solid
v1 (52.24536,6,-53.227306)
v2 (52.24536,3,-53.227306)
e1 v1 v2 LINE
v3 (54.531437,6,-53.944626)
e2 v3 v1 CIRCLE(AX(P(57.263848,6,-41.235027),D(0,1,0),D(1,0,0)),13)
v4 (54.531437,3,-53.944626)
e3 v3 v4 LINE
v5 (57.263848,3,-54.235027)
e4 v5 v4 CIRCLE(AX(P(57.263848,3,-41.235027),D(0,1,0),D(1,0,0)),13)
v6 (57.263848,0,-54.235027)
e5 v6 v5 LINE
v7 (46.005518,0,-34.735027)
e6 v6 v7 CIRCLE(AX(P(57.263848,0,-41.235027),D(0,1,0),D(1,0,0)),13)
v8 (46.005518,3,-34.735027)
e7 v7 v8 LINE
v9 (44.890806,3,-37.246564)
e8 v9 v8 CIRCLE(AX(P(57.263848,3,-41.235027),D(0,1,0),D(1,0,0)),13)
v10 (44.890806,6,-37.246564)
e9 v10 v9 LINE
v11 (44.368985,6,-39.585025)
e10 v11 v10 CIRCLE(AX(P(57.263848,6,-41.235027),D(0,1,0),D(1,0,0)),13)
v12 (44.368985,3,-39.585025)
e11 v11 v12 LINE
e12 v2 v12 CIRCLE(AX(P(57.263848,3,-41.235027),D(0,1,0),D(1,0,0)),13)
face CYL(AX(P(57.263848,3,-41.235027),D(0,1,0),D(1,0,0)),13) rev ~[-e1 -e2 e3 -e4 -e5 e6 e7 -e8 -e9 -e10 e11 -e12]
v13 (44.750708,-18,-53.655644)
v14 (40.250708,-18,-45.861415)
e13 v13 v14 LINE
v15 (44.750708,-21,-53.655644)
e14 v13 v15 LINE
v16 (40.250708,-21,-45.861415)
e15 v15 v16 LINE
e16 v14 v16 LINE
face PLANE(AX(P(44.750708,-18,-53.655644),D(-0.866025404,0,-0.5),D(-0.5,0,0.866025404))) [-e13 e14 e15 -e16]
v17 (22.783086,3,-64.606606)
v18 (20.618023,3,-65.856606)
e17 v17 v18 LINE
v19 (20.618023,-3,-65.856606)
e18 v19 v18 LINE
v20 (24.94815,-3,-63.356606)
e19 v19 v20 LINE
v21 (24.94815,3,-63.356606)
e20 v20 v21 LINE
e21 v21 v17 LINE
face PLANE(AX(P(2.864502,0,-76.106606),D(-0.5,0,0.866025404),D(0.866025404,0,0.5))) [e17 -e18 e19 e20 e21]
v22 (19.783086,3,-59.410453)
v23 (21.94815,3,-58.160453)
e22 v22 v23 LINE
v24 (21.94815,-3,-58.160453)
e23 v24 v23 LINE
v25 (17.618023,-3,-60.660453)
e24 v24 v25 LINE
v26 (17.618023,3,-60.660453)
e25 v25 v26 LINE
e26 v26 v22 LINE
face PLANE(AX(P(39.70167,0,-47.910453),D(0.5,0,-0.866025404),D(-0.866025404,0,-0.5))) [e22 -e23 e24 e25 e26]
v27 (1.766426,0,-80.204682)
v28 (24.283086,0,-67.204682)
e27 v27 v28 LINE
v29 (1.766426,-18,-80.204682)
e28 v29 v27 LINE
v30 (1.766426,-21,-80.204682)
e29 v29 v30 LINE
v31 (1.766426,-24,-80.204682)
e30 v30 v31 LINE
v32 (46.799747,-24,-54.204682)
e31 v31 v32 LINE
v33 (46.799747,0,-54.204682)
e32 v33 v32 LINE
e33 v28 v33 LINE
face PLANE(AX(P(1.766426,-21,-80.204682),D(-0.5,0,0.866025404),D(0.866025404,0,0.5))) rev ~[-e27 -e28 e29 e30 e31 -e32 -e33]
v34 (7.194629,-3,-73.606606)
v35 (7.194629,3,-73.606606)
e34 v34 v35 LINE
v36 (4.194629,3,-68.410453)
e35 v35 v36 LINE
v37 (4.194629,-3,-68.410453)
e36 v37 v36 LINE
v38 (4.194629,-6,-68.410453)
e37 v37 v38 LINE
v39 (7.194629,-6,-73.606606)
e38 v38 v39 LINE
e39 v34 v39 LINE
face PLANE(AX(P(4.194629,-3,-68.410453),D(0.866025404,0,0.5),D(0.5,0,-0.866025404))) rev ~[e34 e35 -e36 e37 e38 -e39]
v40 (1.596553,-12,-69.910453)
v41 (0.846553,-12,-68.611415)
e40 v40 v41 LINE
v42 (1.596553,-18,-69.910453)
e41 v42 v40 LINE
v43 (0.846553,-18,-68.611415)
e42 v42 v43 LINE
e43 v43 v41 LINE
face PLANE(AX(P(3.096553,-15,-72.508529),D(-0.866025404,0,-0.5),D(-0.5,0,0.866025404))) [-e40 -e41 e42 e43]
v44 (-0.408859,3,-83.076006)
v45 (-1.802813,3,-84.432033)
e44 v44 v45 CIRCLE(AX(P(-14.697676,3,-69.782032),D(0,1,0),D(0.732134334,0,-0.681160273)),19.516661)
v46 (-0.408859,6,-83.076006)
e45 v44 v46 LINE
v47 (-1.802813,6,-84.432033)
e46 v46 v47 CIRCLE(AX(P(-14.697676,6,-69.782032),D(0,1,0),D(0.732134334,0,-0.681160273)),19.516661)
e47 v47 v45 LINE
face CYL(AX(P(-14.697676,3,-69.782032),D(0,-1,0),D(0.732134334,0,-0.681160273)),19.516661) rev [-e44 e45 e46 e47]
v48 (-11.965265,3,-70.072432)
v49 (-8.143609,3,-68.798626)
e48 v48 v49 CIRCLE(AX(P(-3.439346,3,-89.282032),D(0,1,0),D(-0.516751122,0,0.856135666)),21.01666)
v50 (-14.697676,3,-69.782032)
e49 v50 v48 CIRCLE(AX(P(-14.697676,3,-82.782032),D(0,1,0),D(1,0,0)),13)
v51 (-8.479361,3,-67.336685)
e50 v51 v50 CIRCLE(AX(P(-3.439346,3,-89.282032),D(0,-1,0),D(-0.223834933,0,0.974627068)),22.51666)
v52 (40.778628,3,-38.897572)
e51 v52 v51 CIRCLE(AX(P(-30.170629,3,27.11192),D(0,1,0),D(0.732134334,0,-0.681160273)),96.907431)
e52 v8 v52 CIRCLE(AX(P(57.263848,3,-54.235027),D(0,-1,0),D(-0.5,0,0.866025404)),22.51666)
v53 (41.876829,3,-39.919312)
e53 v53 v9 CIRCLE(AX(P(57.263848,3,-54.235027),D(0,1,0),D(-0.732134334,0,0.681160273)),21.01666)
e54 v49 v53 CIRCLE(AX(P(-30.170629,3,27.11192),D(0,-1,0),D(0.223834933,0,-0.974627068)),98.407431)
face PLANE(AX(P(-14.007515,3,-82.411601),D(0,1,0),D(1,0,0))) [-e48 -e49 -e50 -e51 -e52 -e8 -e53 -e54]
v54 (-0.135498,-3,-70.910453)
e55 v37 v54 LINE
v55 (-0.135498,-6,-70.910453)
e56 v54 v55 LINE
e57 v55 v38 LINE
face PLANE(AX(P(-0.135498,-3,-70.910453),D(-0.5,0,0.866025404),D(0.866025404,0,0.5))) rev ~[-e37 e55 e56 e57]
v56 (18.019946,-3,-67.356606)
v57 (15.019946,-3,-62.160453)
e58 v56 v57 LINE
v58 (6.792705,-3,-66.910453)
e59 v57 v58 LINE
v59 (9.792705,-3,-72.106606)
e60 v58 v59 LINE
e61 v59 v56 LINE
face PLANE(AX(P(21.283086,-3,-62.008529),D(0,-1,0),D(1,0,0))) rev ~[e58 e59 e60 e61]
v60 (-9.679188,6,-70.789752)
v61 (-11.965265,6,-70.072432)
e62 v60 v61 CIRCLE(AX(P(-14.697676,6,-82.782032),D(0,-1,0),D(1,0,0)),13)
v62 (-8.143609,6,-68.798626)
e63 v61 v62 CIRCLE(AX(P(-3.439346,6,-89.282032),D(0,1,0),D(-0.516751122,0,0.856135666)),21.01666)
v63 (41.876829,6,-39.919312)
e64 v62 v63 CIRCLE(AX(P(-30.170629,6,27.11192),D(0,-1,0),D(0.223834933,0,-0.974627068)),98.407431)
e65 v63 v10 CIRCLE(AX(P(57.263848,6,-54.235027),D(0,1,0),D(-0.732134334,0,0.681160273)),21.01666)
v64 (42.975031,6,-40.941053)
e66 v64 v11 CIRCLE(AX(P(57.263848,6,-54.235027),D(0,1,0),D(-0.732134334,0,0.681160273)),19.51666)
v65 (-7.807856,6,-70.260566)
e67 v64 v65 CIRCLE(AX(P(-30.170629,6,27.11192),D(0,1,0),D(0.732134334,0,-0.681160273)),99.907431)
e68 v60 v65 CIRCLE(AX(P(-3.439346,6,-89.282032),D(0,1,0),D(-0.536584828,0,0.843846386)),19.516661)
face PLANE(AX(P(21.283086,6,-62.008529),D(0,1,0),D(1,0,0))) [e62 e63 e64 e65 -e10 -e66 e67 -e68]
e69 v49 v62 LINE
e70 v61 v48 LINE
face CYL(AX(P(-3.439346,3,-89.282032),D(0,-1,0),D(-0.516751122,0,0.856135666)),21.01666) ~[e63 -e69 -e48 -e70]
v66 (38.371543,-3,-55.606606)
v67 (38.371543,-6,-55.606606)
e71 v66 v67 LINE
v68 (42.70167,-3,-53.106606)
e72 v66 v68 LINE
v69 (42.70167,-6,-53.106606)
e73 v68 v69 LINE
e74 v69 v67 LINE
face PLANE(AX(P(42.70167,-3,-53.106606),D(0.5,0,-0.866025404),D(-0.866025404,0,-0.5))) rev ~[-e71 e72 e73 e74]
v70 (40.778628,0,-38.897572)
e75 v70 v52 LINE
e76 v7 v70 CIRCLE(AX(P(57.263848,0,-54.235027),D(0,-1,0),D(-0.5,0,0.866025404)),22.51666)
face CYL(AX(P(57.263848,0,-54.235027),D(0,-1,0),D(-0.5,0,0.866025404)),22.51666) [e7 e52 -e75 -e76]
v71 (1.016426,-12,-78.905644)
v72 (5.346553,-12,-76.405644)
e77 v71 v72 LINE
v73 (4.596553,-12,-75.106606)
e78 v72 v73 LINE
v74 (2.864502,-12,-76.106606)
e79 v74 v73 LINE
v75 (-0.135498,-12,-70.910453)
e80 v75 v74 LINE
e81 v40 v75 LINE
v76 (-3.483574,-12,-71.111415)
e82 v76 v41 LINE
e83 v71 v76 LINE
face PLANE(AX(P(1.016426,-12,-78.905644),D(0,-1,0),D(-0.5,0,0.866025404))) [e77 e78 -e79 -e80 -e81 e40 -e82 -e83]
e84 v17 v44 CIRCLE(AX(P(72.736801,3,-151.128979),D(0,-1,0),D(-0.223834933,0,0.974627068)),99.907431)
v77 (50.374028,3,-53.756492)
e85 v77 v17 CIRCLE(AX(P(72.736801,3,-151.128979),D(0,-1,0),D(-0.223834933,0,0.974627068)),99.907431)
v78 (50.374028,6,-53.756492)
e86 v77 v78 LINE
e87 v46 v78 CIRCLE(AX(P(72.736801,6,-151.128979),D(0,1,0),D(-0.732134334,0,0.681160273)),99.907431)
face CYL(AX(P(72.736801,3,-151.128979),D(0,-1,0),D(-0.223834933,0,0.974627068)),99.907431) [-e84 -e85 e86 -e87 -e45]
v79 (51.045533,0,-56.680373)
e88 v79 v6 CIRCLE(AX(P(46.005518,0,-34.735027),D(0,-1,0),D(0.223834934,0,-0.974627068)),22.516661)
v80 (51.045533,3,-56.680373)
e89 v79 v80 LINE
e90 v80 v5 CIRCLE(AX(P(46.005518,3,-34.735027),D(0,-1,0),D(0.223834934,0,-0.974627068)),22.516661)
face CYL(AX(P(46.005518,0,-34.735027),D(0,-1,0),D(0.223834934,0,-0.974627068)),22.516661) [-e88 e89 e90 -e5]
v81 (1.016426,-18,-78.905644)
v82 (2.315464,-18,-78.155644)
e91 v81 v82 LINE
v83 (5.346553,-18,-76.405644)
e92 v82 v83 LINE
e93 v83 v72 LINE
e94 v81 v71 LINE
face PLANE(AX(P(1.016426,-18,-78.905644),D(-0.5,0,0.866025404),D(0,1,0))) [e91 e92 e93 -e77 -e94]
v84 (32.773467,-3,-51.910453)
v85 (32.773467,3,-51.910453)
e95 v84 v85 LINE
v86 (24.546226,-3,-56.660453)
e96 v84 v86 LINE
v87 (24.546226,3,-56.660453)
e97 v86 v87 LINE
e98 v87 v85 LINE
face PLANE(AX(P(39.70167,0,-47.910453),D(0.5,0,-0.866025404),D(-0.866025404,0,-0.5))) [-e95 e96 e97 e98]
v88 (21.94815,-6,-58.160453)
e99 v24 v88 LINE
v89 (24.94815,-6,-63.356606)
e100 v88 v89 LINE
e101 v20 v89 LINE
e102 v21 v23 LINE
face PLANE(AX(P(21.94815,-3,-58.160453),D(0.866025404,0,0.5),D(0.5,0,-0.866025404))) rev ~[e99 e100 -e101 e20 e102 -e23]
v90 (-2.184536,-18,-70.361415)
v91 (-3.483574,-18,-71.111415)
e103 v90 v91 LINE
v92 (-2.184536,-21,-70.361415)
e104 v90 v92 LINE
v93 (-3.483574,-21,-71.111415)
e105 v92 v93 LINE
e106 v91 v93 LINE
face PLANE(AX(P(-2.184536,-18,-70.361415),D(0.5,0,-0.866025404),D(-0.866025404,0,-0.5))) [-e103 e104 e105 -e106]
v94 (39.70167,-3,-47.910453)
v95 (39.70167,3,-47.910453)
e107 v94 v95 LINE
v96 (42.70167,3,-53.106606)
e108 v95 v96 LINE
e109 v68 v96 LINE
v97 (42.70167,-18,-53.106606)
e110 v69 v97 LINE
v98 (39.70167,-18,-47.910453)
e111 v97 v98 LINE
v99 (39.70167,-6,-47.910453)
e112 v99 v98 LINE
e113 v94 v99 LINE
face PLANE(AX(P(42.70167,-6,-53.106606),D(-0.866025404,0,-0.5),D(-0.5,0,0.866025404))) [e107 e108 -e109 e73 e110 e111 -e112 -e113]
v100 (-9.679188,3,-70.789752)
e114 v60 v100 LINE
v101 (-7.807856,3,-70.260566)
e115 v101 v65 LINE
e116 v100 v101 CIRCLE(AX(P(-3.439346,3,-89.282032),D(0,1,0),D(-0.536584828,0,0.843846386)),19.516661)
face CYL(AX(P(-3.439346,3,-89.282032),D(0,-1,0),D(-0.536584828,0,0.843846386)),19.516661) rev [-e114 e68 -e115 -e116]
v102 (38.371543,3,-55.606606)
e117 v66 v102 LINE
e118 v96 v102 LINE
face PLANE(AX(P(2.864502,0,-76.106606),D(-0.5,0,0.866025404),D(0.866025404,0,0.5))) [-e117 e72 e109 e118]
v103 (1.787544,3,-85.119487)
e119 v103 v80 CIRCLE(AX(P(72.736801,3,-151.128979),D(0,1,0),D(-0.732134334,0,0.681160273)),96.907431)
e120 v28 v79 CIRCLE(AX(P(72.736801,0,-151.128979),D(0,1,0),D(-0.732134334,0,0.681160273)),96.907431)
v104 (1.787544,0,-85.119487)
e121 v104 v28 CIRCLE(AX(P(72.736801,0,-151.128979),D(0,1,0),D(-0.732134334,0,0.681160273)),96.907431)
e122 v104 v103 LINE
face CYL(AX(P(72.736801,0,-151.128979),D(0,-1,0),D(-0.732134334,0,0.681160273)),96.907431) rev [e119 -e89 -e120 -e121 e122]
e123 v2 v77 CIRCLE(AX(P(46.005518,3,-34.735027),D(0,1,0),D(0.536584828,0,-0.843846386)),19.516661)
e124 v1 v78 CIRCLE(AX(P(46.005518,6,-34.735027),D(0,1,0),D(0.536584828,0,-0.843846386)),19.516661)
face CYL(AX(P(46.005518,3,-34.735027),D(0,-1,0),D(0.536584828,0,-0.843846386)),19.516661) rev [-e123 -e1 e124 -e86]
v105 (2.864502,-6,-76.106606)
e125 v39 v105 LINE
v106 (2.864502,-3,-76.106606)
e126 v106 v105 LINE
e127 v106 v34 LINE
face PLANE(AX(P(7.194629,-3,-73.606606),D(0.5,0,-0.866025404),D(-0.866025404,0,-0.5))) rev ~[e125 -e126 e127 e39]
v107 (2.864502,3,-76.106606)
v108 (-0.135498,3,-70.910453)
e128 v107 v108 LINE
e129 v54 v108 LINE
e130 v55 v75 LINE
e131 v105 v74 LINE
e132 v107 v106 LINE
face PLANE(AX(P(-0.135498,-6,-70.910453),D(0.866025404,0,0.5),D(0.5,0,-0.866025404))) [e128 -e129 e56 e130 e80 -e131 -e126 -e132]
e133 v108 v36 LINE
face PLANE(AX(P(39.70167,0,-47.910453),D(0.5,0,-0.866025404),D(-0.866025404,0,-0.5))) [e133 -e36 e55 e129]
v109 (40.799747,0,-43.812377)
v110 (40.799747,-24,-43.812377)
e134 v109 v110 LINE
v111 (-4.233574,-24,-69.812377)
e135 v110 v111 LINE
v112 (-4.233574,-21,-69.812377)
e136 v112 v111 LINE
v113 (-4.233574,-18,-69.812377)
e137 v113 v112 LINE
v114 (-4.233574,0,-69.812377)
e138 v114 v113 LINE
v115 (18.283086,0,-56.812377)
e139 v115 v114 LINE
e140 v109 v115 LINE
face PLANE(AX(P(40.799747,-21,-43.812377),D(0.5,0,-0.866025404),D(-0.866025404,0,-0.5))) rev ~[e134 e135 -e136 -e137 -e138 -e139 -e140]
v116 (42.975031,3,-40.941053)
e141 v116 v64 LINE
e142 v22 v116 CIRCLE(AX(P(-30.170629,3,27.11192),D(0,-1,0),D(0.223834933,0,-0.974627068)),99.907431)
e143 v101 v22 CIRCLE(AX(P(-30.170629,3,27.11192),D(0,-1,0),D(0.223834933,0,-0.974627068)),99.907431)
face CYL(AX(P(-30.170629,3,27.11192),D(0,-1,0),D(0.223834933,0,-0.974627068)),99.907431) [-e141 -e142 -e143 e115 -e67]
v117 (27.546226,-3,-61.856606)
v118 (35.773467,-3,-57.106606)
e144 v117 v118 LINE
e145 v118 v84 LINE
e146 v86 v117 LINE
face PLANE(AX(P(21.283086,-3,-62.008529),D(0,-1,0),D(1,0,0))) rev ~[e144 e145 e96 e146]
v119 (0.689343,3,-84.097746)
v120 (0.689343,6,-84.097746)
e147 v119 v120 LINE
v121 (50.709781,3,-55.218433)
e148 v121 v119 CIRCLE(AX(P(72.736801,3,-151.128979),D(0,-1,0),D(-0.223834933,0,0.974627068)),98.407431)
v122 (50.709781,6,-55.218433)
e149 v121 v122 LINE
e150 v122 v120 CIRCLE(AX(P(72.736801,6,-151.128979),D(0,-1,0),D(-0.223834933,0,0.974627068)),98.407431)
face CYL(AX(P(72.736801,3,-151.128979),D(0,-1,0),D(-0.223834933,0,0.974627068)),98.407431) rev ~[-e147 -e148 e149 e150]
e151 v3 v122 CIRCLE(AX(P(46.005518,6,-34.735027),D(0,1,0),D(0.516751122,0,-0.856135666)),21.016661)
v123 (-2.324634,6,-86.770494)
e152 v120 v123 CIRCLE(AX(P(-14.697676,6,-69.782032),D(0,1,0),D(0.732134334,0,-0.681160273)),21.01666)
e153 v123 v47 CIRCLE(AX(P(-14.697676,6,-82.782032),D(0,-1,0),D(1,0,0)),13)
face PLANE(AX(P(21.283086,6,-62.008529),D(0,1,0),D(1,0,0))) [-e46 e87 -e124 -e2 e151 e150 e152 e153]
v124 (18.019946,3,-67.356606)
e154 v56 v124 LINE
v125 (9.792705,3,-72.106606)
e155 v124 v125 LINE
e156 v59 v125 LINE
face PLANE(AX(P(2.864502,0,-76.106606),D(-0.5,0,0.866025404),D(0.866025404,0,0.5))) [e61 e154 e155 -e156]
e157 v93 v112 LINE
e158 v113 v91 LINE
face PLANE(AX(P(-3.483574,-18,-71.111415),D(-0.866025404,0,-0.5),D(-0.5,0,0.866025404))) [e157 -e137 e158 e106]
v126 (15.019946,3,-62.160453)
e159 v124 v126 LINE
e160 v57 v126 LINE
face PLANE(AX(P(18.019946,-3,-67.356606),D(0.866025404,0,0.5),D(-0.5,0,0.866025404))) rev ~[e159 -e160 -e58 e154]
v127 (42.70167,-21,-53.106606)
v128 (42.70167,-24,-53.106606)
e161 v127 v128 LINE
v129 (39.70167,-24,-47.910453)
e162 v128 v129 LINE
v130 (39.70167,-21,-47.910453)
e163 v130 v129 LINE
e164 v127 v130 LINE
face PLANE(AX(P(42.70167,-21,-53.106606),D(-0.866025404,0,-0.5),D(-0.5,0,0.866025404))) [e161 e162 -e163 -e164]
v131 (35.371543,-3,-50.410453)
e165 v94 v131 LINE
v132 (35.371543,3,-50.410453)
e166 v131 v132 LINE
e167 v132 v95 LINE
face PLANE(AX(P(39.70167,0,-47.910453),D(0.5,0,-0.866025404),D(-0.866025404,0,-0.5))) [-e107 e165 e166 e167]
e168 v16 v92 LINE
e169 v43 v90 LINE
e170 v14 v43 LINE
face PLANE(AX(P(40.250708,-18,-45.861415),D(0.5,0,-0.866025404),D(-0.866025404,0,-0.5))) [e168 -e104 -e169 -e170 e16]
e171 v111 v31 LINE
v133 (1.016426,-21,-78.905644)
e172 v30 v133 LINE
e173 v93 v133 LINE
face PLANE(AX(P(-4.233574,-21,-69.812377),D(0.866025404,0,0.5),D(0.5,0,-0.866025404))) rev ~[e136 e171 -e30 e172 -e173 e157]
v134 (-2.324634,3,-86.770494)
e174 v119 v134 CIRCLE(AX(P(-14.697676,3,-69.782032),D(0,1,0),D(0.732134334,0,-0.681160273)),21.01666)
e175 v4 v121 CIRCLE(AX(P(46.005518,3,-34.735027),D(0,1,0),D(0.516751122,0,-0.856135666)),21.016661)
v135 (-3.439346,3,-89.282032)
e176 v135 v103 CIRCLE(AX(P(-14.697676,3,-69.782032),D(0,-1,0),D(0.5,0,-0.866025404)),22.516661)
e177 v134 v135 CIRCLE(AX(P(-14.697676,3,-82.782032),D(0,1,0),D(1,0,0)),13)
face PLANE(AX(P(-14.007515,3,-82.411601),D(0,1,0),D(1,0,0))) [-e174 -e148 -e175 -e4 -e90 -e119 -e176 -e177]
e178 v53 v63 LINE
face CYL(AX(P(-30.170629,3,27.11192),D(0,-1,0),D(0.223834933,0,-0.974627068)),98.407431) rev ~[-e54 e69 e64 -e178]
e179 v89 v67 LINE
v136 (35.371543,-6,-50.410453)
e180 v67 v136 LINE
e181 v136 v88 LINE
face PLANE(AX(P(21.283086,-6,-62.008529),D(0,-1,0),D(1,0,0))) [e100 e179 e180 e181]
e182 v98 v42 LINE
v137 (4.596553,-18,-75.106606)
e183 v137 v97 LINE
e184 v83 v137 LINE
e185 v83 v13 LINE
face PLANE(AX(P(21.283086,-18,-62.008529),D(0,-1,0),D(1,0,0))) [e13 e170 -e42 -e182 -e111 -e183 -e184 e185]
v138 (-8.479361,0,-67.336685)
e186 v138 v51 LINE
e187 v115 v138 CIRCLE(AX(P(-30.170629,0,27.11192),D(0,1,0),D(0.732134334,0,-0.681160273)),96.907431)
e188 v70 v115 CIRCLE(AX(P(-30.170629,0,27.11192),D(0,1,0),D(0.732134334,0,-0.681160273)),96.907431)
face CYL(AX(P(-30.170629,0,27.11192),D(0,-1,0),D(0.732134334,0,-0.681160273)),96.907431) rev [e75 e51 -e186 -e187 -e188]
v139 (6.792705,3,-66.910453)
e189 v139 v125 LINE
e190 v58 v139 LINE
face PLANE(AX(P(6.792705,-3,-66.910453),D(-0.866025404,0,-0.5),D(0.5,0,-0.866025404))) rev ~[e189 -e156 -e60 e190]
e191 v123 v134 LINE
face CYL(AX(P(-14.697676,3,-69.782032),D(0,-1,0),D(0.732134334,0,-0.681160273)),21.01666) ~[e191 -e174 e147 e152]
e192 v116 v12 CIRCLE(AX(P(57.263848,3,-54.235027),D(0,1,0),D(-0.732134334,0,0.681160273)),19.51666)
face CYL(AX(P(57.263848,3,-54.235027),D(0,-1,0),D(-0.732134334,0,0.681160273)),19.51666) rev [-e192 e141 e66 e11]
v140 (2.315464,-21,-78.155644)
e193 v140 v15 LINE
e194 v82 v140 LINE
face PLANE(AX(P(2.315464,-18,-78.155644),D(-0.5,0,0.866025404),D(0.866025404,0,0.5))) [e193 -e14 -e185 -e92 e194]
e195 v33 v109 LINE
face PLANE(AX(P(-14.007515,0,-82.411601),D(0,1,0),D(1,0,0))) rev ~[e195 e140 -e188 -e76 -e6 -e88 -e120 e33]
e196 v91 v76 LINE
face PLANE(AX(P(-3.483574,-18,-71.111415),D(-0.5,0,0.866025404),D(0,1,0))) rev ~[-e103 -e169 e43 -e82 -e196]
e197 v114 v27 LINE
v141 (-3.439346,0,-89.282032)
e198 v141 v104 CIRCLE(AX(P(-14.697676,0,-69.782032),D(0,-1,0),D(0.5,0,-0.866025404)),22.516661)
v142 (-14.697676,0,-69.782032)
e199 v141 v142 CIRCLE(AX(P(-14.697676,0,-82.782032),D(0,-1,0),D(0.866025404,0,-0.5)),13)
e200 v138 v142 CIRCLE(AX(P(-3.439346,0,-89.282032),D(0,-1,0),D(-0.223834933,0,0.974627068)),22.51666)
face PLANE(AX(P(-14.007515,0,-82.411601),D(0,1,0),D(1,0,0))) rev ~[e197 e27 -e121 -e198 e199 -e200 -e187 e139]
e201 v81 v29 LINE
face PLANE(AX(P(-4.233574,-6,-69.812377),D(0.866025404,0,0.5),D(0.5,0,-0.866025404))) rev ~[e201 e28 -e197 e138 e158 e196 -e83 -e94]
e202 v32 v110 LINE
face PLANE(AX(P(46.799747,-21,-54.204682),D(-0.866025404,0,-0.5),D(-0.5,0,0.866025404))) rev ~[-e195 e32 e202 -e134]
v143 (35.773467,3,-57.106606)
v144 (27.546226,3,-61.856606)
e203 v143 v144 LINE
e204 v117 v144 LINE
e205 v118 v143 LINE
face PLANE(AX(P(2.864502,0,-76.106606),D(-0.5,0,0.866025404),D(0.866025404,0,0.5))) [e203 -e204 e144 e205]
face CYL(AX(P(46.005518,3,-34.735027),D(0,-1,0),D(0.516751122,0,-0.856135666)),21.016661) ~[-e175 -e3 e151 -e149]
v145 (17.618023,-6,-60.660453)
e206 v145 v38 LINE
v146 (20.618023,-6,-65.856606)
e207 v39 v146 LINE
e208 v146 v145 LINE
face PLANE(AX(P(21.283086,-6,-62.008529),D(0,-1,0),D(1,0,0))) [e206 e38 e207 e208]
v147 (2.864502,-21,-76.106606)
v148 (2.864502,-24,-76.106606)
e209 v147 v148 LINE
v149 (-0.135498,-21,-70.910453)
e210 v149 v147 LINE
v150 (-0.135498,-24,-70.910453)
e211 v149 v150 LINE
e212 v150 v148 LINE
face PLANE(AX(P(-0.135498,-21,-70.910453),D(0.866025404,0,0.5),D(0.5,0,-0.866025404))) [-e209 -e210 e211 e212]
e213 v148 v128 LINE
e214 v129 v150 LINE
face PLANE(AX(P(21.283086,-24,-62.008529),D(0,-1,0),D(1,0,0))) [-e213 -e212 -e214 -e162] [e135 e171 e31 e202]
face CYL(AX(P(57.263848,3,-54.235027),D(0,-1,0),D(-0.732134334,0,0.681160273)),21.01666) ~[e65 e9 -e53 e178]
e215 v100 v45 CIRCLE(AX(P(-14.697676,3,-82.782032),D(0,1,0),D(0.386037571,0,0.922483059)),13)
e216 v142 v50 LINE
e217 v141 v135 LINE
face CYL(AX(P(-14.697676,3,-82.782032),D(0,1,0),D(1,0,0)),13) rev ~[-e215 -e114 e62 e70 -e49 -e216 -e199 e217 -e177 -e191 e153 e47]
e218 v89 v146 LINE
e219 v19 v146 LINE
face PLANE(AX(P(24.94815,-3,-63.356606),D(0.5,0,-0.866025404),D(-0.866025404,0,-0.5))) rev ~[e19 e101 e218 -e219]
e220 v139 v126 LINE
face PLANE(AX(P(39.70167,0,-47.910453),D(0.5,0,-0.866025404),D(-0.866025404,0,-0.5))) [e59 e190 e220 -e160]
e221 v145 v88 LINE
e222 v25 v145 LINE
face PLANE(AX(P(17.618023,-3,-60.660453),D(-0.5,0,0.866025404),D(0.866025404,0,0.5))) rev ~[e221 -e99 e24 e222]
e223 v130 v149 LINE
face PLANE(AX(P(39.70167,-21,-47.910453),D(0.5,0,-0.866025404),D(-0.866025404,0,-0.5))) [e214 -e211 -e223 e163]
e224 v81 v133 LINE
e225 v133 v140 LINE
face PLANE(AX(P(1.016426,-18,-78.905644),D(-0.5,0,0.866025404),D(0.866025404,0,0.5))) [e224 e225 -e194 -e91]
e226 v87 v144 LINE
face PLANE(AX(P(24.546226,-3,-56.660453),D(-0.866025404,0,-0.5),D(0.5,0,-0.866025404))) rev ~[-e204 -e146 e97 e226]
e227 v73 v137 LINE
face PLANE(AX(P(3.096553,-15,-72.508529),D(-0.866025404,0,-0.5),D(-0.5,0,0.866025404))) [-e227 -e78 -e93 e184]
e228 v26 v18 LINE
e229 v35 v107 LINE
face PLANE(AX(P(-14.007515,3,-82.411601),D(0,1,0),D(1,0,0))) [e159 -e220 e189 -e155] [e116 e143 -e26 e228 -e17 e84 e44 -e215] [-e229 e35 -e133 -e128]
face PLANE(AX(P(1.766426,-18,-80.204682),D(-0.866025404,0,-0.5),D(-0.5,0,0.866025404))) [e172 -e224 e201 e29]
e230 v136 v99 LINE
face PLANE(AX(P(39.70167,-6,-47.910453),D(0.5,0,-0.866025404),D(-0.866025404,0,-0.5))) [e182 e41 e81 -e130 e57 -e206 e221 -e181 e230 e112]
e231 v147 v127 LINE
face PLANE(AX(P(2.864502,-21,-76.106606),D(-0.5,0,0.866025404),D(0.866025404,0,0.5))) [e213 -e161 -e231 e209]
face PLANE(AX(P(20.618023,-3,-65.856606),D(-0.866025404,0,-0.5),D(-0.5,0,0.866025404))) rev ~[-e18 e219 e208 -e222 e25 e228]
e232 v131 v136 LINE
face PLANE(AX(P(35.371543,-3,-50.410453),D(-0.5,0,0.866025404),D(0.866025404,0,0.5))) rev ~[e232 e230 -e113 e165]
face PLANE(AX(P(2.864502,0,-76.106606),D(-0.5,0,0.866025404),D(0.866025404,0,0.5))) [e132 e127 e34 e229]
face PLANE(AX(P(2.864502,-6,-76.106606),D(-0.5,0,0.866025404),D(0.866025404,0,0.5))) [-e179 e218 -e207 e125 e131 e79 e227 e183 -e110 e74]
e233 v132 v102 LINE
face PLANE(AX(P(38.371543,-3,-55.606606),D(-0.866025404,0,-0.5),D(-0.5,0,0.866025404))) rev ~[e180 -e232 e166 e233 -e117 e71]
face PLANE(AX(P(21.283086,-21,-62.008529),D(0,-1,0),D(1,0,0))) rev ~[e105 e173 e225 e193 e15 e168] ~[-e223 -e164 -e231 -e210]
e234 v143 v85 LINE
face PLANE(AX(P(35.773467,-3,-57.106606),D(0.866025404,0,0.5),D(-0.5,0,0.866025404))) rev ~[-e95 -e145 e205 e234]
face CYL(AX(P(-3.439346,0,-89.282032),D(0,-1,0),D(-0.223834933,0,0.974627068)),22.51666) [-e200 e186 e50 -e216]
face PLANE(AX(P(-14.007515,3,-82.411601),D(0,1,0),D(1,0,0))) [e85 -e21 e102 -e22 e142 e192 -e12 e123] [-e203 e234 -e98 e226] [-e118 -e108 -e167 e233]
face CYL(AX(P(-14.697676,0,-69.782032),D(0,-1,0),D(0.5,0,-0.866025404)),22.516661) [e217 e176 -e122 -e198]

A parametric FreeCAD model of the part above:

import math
import FreeCAD as App
import Part
import Sketcher
Q = App.Units.Quantity


def add_polygon(sketch, points):
    """Adds a closed chain of lines whose ends are joined by coincident constraints."""
    first, n = sketch.GeometryCount, len(points)
    for a, b in zip(points, points[1:] + points[:1]):
        sketch.addGeometry(Part.LineSegment(App.Vector(*a, 0), App.Vector(*b, 0)), False)
    for i in range(n):
        sketch.addConstraint(Sketcher.Constraint("Coincident", first + i, 2, first + (i + 1) % n, 1))

doc = App.newDocument("Part")
body = doc.addObject("PartDesign::Body", "Body")

# Sketch on XZ plane
sketch1 = doc.addObject("Sketcher::SketchObject", "Sketch")
body.addObject(sketch1)
sketch1.AttachmentSupport = (doc.XZ_Plane, [""])
sketch1.MapMode = "FlatFace"
sketch1.addGeometry([
    Part.ArcOfCircle(Part.Circle(App.Vector(-14.697676, -82.782032, 0), App.Vector(0, 0, 1), 13), math.radians(90), math.radians(330)),  # 0
    Part.ArcOfCircle(Part.Circle(App.Vector(-3.439346, -89.282032, 0), App.Vector(0, 0, 1), 22.51666), math.radians(102.934378), math.radians(120)),  # 1
    Part.ArcOfCircle(Part.Circle(App.Vector(-30.170629, 27.11192, 0), App.Vector(0, 0, 1), 96.907431), math.radians(-77.065622), math.radians(-42.934378)),  # 2
    Part.ArcOfCircle(Part.Circle(App.Vector(57.263848, -54.235027, 0), App.Vector(0, 0, 1), 22.51666), math.radians(120), math.radians(137.065622)),  # 3
    Part.ArcOfCircle(Part.Circle(App.Vector(57.263848, -41.235027, 0), App.Vector(0, 0, 1), 13), math.radians(0), math.radians(150)),  # 4
    Part.ArcOfCircle(Part.Circle(App.Vector(57.263848, -41.235027, 0), App.Vector(0, 0, 1), 13), math.radians(-90), math.radians(0)),  # 5
    Part.ArcOfCircle(Part.Circle(App.Vector(46.005518, -34.735027, 0), App.Vector(0, 0, 1), 22.516661), math.radians(-77.065622), math.radians(-60)),  # 6
    Part.ArcOfCircle(Part.Circle(App.Vector(72.736801, -151.128979, 0), App.Vector(0, 0, 1), 96.907431), math.radians(102.934378), math.radians(137.065622)),  # 7
    Part.ArcOfCircle(Part.Circle(App.Vector(-14.697676, -69.782032, 0), App.Vector(0, 0, 1), 22.516661), math.radians(-60), math.radians(-42.934378)),  # 8
], False)
sketch1.addConstraint([
    Sketcher.Constraint("Coincident", 0, 1, 1, 2),
    Sketcher.Constraint("Tangent", 1, 1, 2, 1),
    Sketcher.Constraint("Tangent", 2, 2, 3, 2),
    Sketcher.Constraint("Coincident", 3, 1, 4, 2),
    Sketcher.Constraint("Tangent", 4, 1, 5, 2),
    Sketcher.Constraint("Coincident", 5, 1, 6, 2),
    Sketcher.Constraint("Tangent", 6, 1, 7, 1),
    Sketcher.Constraint("Tangent", 7, 2, 8, 2),
    Sketcher.Constraint("Coincident", 8, 1, 0, 2),
    Sketcher.Constraint("Coincident", 0, 1, 8, 3),
    Sketcher.Constraint("Coincident", 3, 1, 6, 3),
    Sketcher.Constraint("Coincident", 5, 1, 3, 3),
    Sketcher.Constraint("Coincident", 8, 1, 1, 3),
    Sketcher.Constraint("Equal", 1, 3),
    Sketcher.Constraint("Equal", 0, 4),
    Sketcher.Constraint("Equal", 4, 5),
    Sketcher.Constraint("Equal", 2, 7),
    Sketcher.Constraint("Horizontal", 5, 3, 4, 1),
    Sketcher.Constraint("Vertical", 3, 3, 4, 3),
    Sketcher.Constraint("Vertical", 0, 3, 8, 3),
    Sketcher.Constraint("Radius", 0, Q("13 mm")),
    Sketcher.Constraint("DistanceY", 1, 3, 0, 3, Q("6.5 mm")),
    Sketcher.Constraint("Radius", 2, Q("96.907431 mm")),
    Sketcher.Constraint("DistanceX", -1, 1, 7, 3, Q("72.736801 mm")),
    Sketcher.Constraint("DistanceY", 1, 3, -1, 1, Q("89.282032 mm")),
    Sketcher.Constraint("DistanceX", 2, 3, -1, 1, Q("30.170629 mm")),
    Sketcher.Constraint("DistanceY", -1, 1, 2, 3, Q("27.11192 mm")),
])
pad1 = doc.addObject("PartDesign::Pad", "Pad")
body.addObject(pad1)
pad1.Profile = sketch1
pad1.Length = 3
pad1.Reversed = True

# Sketch on XZ plane
sketch2 = doc.addObject("Sketcher::SketchObject", "Sketch001")
body.addObject(sketch2)
sketch2.AttachmentSupport = (doc.XZ_Plane, [""])
sketch2.MapMode = "FlatFace"
sketch2.AttachmentOffset = App.Placement(App.Vector(0, 0, -3), App.Rotation())
sketch2.addGeometry([
    Part.ArcOfCircle(Part.Circle(App.Vector(-14.697676, -82.782032, 0), App.Vector(0, 0, 1), 11.5), math.radians(88.016934), math.radians(331.983066)),  # 0
    Part.ArcOfCircle(Part.Circle(App.Vector(-3.439346, -89.282032, 0), App.Vector(0, 0, 1), 21.01666), math.radians(102.934378), math.radians(121.114574)),  # 1
    Part.ArcOfCircle(Part.Circle(App.Vector(-30.170629, 27.11192, 0), App.Vector(0, 0, 1), 98.407431), math.radians(-77.065622), math.radians(-42.934378)),  # 2
    Part.ArcOfCircle(Part.Circle(App.Vector(57.263848, -54.235027, 0), App.Vector(0, 0, 1), 21.01666), math.radians(118.885426), math.radians(137.065622)),  # 3
    Part.ArcOfCircle(Part.Circle(App.Vector(57.263848, -41.235027, 0), App.Vector(0, 0, 1), 11.5), math.radians(-91.983066), math.radians(151.983066)),  # 4
    Part.ArcOfCircle(Part.Circle(App.Vector(46.005518, -34.735027, 0), App.Vector(0, 0, 1), 21.016661), math.radians(-77.065622), math.radians(-58.885426)),  # 5
    Part.ArcOfCircle(Part.Circle(App.Vector(72.736801, -151.128979, 0), App.Vector(0, 0, 1), 98.407431), math.radians(102.934378), math.radians(137.065622)),  # 6
    Part.ArcOfCircle(Part.Circle(App.Vector(-14.697676, -69.782032, 0), App.Vector(0, 0, 1), 21.01666), math.radians(-61.114574), math.radians(-42.934378)),  # 7
    Part.ArcOfCircle(Part.Circle(App.Vector(-14.697676, -82.782032, 0), App.Vector(0, 0, 1), 10), math.radians(85.49198), math.radians(334.50802)),  # 8
    Part.ArcOfCircle(Part.Circle(App.Vector(-14.697676, -69.782032, 0), App.Vector(0, 0, 1), 19.516661), math.radians(-62.451454), math.radians(-42.934378)),  # 9
    Part.ArcOfCircle(Part.Circle(App.Vector(72.736801, -151.128979, 0), App.Vector(0, 0, 1), 99.907431), math.radians(102.934378), math.radians(137.065622)),  # 10
    Part.ArcOfCircle(Part.Circle(App.Vector(46.005518, -34.735027, 0), App.Vector(0, 0, 1), 19.516661), math.radians(-77.065622), math.radians(-57.548546)),  # 11
    Part.ArcOfCircle(Part.Circle(App.Vector(57.263848, -41.235027, 0), App.Vector(0, 0, 1), 10), math.radians(-94.50802), math.radians(154.50802)),  # 12
    Part.ArcOfCircle(Part.Circle(App.Vector(57.263848, -54.235027, 0), App.Vector(0, 0, 1), 19.51666), math.radians(117.548546), math.radians(137.065622)),  # 13
    Part.ArcOfCircle(Part.Circle(App.Vector(-30.170629, 27.11192, 0), App.Vector(0, 0, 1), 99.907431), math.radians(-77.065622), math.radians(-42.934378)),  # 14
    Part.ArcOfCircle(Part.Circle(App.Vector(-3.439346, -89.282032, 0), App.Vector(0, 0, 1), 19.516661), math.radians(102.934378), math.radians(122.451454)),  # 15
], False)
sketch2.addConstraint([
    Sketcher.Constraint("Coincident", 0, 1, 1, 2),
    Sketcher.Constraint("Tangent", 1, 1, 2, 1),
    Sketcher.Constraint("Tangent", 2, 2, 3, 2),
    Sketcher.Constraint("Coincident", 3, 1, 4, 2),
    Sketcher.Constraint("Coincident", 4, 1, 5, 2),
    Sketcher.Constraint("Tangent", 5, 1, 6, 1),
    Sketcher.Constraint("Tangent", 6, 2, 7, 2),
    Sketcher.Constraint("Coincident", 7, 1, 0, 2),
    Sketcher.Constraint("Coincident", 8, 2, 9, 1),
    Sketcher.Constraint("Tangent", 9, 2, 10, 2),
    Sketcher.Constraint("Tangent", 10, 1, 11, 1),
    Sketcher.Constraint("Coincident", 11, 2, 12, 1),
    Sketcher.Constraint("Coincident", 12, 2, 13, 1),
    Sketcher.Constraint("Tangent", 13, 2, 14, 2),
    Sketcher.Constraint("Tangent", 14, 1, 15, 1),
    Sketcher.Constraint("Coincident", 15, 2, 8, 1),
    Sketcher.Constraint("Coincident", 8, 3, 0, 3),
    Sketcher.Constraint("Coincident", 9, 3, 7, 3),
    Sketcher.Constraint("Coincident", 10, 3, 6, 3),
    Sketcher.Constraint("Coincident", 11, 3, 5, 3),
    Sketcher.Constraint("Coincident", 12, 3, 4, 3),
    Sketcher.Constraint("Coincident", 13, 3, 3, 3),
    Sketcher.Constraint("Coincident", 14, 3, 2, 3),
    Sketcher.Constraint("Coincident", 15, 3, 1, 3),
    Sketcher.Constraint("Equal", 1, 3),
    Sketcher.Constraint("Equal", 0, 4),
    Sketcher.Constraint("Equal", 3, 5),
    Sketcher.Constraint("Equal", 2, 6),
    Sketcher.Constraint("Equal", 5, 7),
    Sketcher.Constraint("Equal", 8, 12),
    Sketcher.Constraint("Equal", 11, 13),
    Sketcher.Constraint("Vertical", 3, 3, 4, 3),
    Sketcher.Constraint("Vertical", 0, 3, 7, 3),
    Sketcher.Constraint("Radius", 8, Q("10 mm")),
    Sketcher.Constraint("Radius", 0, Q("11.5 mm")),
    Sketcher.Constraint("DistanceY", 3, 3, 4, 3, Q("13 mm")),
    Sketcher.Constraint("DistanceY", 0, 3, 7, 3, Q("13 mm")),
    Sketcher.Constraint("DistanceY", 1, 3, 0, 3, Q("6.5 mm")),
    Sketcher.Constraint("DistanceY", 4, 3, 5, 3, Q("6.5 mm")),
    Sketcher.Constraint("Radius", 1, Q("21.01666 mm")),
    Sketcher.Constraint("Radius", 2, Q("98.407431 mm")),
    Sketcher.Constraint("Radius", 9, Q("19.516661 mm")),
    Sketcher.Constraint("DistanceX", -1, 1, 6, 3, Q("72.736801 mm")),
    Sketcher.Constraint("DistanceX", -1, 1, 4, 1, Q("56.865901 mm")),
    Sketcher.Constraint("DistanceX", 2, 3, -1, 1, Q("30.170629 mm")),
    Sketcher.Constraint("DistanceY", -1, 1, 2, 3, Q("27.11192 mm")),
    Sketcher.Constraint("DistanceX", -1, 1, 3, 3, Q("57.263848 mm")),
    Sketcher.Constraint("DistanceX", 0, 1, -1, 1, Q("14.299729 mm")),
])
pad2 = doc.addObject("PartDesign::Pad", "Pad001")
body.addObject(pad2)
pad2.Profile = sketch2
pad2.Length = 3
pad2.Reversed = True

# Sketch on XZ plane
sketch3 = doc.addObject("Sketcher::SketchObject", "Sketch002")
body.addObject(sketch3)
sketch3.AttachmentSupport = (doc.XZ_Plane, [""])
sketch3.MapMode = "FlatFace"
sketch3.AttachmentOffset = App.Placement(App.Vector(0, 0, -3), App.Rotation())
sketch3.addGeometry([
    Part.Circle(App.Vector(-14.697676, -82.782032, 0), App.Vector(0, 0, 1), 13),
    Part.Circle(App.Vector(57.263848, -41.235027, 0), App.Vector(0, 0, 1), 13),
], False)
sketch3.addConstraint([
    Sketcher.Constraint("Equal", 0, 1),
    Sketcher.Constraint("Diameter", 0, Q("26 mm")),
    Sketcher.Constraint("DistanceX", -1, 1, 1, 3, Q("57.263848 mm")),
    Sketcher.Constraint("DistanceX", 0, 3, -1, 1, Q("14.697676 mm")),
    Sketcher.Constraint("DistanceY", 0, 3, -1, 1, Q("82.782032 mm")),
    Sketcher.Constraint("DistanceY", 1, 3, -1, 1, Q("41.235027 mm")),
])
pocket1 = doc.addObject("PartDesign::Pocket", "Pocket")
body.addObject(pocket1)
pocket1.Profile = sketch3
pocket1.Length = 13
pocket1.Midplane = True

# Sketch on XZ plane
sketch4 = doc.addObject("Sketcher::SketchObject", "Sketch003")
body.addObject(sketch4)
sketch4.AttachmentSupport = (doc.XZ_Plane, [""])
sketch4.MapMode = "FlatFace"
add_polygon(sketch4, [(-4.233574, -69.812377), (1.766426, -80.204682), (46.799747, -54.204682), (40.799747, -43.812377)])  # lines 0-3
add_polygon(sketch4, [(42.70167, -53.106606), (2.864502, -76.106606), (-0.135498, -70.910453), (39.70167, -47.910453)])  # lines 4-7
sketch4.addConstraint([
    Sketcher.Constraint("Perpendicular", 0, 1),
    Sketcher.Constraint("Perpendicular", 1, 2),
    Sketcher.Constraint("Perpendicular", 2, 3),
    Sketcher.Constraint("Parallel", 3, 4),
    Sketcher.Constraint("Perpendicular", 4, 5),
    Sketcher.Constraint("Perpendicular", 5, 6),
    Sketcher.Constraint("Perpendicular", 6, 7),
    Sketcher.Constraint("Angle", 0, Q("-60 deg")),
    Sketcher.Constraint("Distance", 0, Q("12 mm")),
    Sketcher.Constraint("Distance", 1, Q("52 mm")),
    Sketcher.Constraint("Distance", 4, Q("46 mm")),
    Sketcher.Constraint("Distance", 5, Q("6 mm")),
    Sketcher.Constraint("DistanceX", -1, 1, 4, 2, Q("2.864502 mm")),
    Sketcher.Constraint("DistanceY", 0, 2, -1, 1, Q("80.204682 mm")),
    Sketcher.Constraint("DistanceY", 4, 2, 3, 2, Q("6.294229 mm")),
    Sketcher.Constraint("DistanceX", -1, 1, 0, 2, Q("1.766426 mm")),
])
pad3 = doc.addObject("PartDesign::Pad", "Pad002")
body.addObject(pad3)
pad3.Profile = sketch4
pad3.Length = 3

# Sketch on XZ plane
sketch5 = doc.addObject("Sketcher::SketchObject", "Sketch004")
body.addObject(sketch5)
sketch5.AttachmentSupport = (doc.XZ_Plane, [""])
sketch5.MapMode = "FlatFace"
add_polygon(sketch5, [(39.70167, -47.910453), (-0.135498, -70.910453), (2.864502, -76.106606), (42.70167, -53.106606)])  # lines 0-3
sketch5.addConstraint([
    Sketcher.Constraint("Perpendicular", 0, 1),
    Sketcher.Constraint("Perpendicular", 1, 2),
    Sketcher.Constraint("Perpendicular", 2, 3),
    Sketcher.Constraint("Angle", 0, Q("-150 deg")),
    Sketcher.Constraint("Distance", 0, Q("46 mm")),
    Sketcher.Constraint("Distance", 1, Q("6 mm")),
    Sketcher.Constraint("DistanceX", 0, 2, -1, 1, Q("0.135498 mm")),
    Sketcher.Constraint("DistanceY", 0, 2, -1, 1, Q("70.910453 mm")),
])
pocket2 = doc.addObject("PartDesign::Pocket", "Pocket001")
body.addObject(pocket2)
pocket2.Profile = sketch5
pocket2.Length = 24

# Sketch on XZ plane
sketch6 = doc.addObject("Sketcher::SketchObject", "Sketch005")
body.addObject(sketch6)
sketch6.AttachmentSupport = (doc.XZ_Plane, [""])
sketch6.MapMode = "FlatFace"
sketch6.AttachmentOffset = App.Placement(App.Vector(0, 0, 3), App.Rotation())
add_polygon(sketch6, [(40.799747, -43.812377), (-4.233574, -69.812377), (1.766426, -80.204682), (46.799747, -54.204682)])  # lines 0-3
sketch6.addConstraint([
    Sketcher.Constraint("Perpendicular", 0, 1),
    Sketcher.Constraint("Perpendicular", 1, 2),
    Sketcher.Constraint("Perpendicular", 2, 3),
    Sketcher.Constraint("Angle", 0, Q("-150 deg")),
    Sketcher.Constraint("Distance", 0, Q("52 mm")),
    Sketcher.Constraint("Distance", 1, Q("12 mm")),
    Sketcher.Constraint("DistanceY", 1, 2, -1, 1, Q("80.204682 mm")),
    Sketcher.Constraint("DistanceX", 0, 2, -1, 1, Q("4.233574 mm")),
])
pad4 = doc.addObject("PartDesign::Pad", "Pad003")
body.addObject(pad4)
pad4.Profile = sketch6
pad4.Length = 3

# Sketch on XZ plane
sketch7 = doc.addObject("Sketcher::SketchObject", "Sketch006")
body.addObject(sketch7)
sketch7.AttachmentSupport = (doc.XZ_Plane, [""])
sketch7.MapMode = "FlatFace"
sketch7.AttachmentOffset = App.Placement(App.Vector(0, 0, 3), App.Rotation())
add_polygon(sketch7, [(4.194629, -68.410453), (6.792705, -66.910453), (9.792705, -72.106606), (7.194629, -73.606606)])  # lines 0-3
add_polygon(sketch7, [(18.019946, -67.356606), (15.019946, -62.160453), (17.618023, -60.660453), (20.618023, -65.856606)])  # lines 4-7
add_polygon(sketch7, [(24.94815, -63.356606), (21.94815, -58.160453), (24.546226, -56.660453), (27.546226, -61.856606)])  # lines 8-11
add_polygon(sketch7, [(35.773467, -57.106606), (32.773467, -51.910453), (35.371543, -50.410453), (38.371543, -55.606606)])  # lines 12-15
sketch7.addConstraint([
    Sketcher.Constraint("Perpendicular", 0, 1),
    Sketcher.Constraint("Perpendicular", 1, 2),
    Sketcher.Constraint("Perpendicular", 2, 3),
    Sketcher.Constraint("Parallel", 3, 4),
    Sketcher.Constraint("Perpendicular", 4, 5),
    Sketcher.Constraint("Perpendicular", 5, 6),
    Sketcher.Constraint("Perpendicular", 6, 7),
    Sketcher.Constraint("Perpendicular", 7, 8),
    Sketcher.Constraint("Perpendicular", 8, 9),
    Sketcher.Constraint("Perpendicular", 9, 10),
    Sketcher.Constraint("Perpendicular", 10, 11),
    Sketcher.Constraint("Perpendicular", 11, 12),
    Sketcher.Constraint("Perpendicular", 12, 13),
    Sketcher.Constraint("Perpendicular", 13, 14),
    Sketcher.Constraint("Perpendicular", 14, 15),
    Sketcher.Constraint("Equal", 3, 4),
    Sketcher.Constraint("Equal", 2, 5),
    Sketcher.Constraint("Equal", 6, 8),
    Sketcher.Constraint("Equal", 7, 9),
    Sketcher.Constraint("Equal", 10, 12),
    Sketcher.Constraint("Equal", 11, 13),
    Sketcher.Constraint("Angle", 0, Q("30 deg")),
    Sketcher.Constraint("Distance", 0, Q("3 mm")),
    Sketcher.Constraint("Distance", 1, Q("6 mm")),
    Sketcher.Constraint("DistanceY", 4, 2, 8, 2, Q("4 mm")),
    Sketcher.Constraint("DistanceY", 0, 2, 4, 2, Q("4.75 mm")),
    Sketcher.Constraint("DistanceY", 9, 2, 12, 2, Q("4.75 mm")),
    Sketcher.Constraint("DistanceX", -1, 1, 2, 2, Q("7.194629 mm")),
    Sketcher.Constraint("DistanceX", -1, 1, 8, 2, Q("21.94815 mm")),
    Sketcher.Constraint("DistanceX", 0, 2, 4, 2, Q("8.227241 mm")),
    Sketcher.Constraint("DistanceX", 9, 2, 12, 2, Q("8.227241 mm")),
    Sketcher.Constraint("DistanceY", 0, 2, -1, 1, Q("66.910453 mm")),
])
pad5 = doc.addObject("PartDesign::Pad", "Pad004")
body.addObject(pad5)
pad5.Profile = sketch7
pad5.Length = 6
pad5.Reversed = True

# Sketch on XZ plane
sketch8 = doc.addObject("Sketcher::SketchObject", "Sketch007")
body.addObject(sketch8)
sketch8.AttachmentSupport = (doc.XZ_Plane, [""])
sketch8.MapMode = "FlatFace"
sketch8.AttachmentOffset = App.Placement(App.Vector(0, 0, 3), App.Rotation())
add_polygon(sketch8, [(42.70167, -53.106606), (38.371543, -55.606606), (35.371543, -50.410453), (39.70167, -47.910453)])  # lines 0-3
add_polygon(sketch8, [(24.94815, -63.356606), (20.618023, -65.856606), (17.618023, -60.660453), (21.94815, -58.160453)])  # lines 4-7
add_polygon(sketch8, [(-0.135498, -70.910453), (4.194629, -68.410453), (7.194629, -73.606606), (2.864502, -76.106606)])  # lines 8-11
sketch8.addConstraint([
    Sketcher.Constraint("Perpendicular", 0, 1),
    Sketcher.Constraint("Perpendicular", 1, 2),
    Sketcher.Constraint("Perpendicular", 2, 3),
    Sketcher.Constraint("Perpendicular", 3, 4),
    Sketcher.Constraint("Perpendicular", 4, 5),
    Sketcher.Constraint("Perpendicular", 5, 6),
    Sketcher.Constraint("Perpendicular", 6, 7),
    Sketcher.Constraint("Perpendicular", 7, 8),
    Sketcher.Constraint("Perpendicular", 8, 9),
    Sketcher.Constraint("Perpendicular", 9, 10),
    Sketcher.Constraint("Perpendicular", 10, 11),
    Sketcher.Constraint("Equal", 2, 4),
    Sketcher.Constraint("Equal", 3, 5),
    Sketcher.Constraint("Equal", 6, 8),
    Sketcher.Constraint("Equal", 7, 9),
    Sketcher.Constraint("Angle", 0, Q("-150 deg")),
    Sketcher.Constraint("Distance", 0, Q("5 mm")),
    Sketcher.Constraint("Distance", 1, Q("6 mm")),
    Sketcher.Constraint("DistanceY", 8, 2, 1, 2, Q("18 mm")),
    Sketcher.Constraint("DistanceY", 4, 2, 0, 2, Q("10.25 mm")),
    Sketcher.Constraint("DistanceX", -1, 1, 10, 2, Q("2.864502 mm")),
    Sketcher.Constraint("DistanceX", -1, 1, 2, 2, Q("39.70167 mm")),
    Sketcher.Constraint("DistanceX", -1, 1, 6, 2, Q("21.94815 mm")),
    Sketcher.Constraint("DistanceY", 0, 2, -1, 1, Q("55.606606 mm")),
])
pocket3 = doc.addObject("PartDesign::Pocket", "Pocket002")
body.addObject(pocket3)
pocket3.Profile = sketch8
pocket3.Length = 3
pocket3.Reversed = True

# Sketch on XZ plane
sketch9 = doc.addObject("Sketcher::SketchObject", "Sketch008")
body.addObject(sketch9)
sketch9.AttachmentSupport = (doc.XZ_Plane, [""])
sketch9.MapMode = "FlatFace"
sketch9.AttachmentOffset = App.Placement(App.Vector(0, 0, 6), App.Rotation())
add_polygon(sketch9, [(46.799747, -54.204682), (40.799747, -43.812377), (-4.233574, -69.812377), (1.766426, -80.204682)])  # lines 0-3
add_polygon(sketch9, [(39.70167, -47.910453), (42.70167, -53.106606), (2.864502, -76.106606), (-0.135498, -70.910453)])  # lines 4-7
sketch9.addConstraint([
    Sketcher.Constraint("Perpendicular", 0, 1),
    Sketcher.Constraint("Perpendicular", 1, 2),
    Sketcher.Constraint("Perpendicular", 2, 3),
    Sketcher.Constraint("Perpendicular", 3, 4),
    Sketcher.Constraint("Perpendicular", 4, 5),
    Sketcher.Constraint("Perpendicular", 5, 6),
    Sketcher.Constraint("Perpendicular", 6, 7),
    Sketcher.Constraint("Angle", 0, Q("120 deg")),
    Sketcher.Constraint("Distance", 0, Q("12 mm")),
    Sketcher.Constraint("Distance", 1, Q("52 mm")),
    Sketcher.Constraint("Distance", 4, Q("6 mm")),
    Sketcher.Constraint("Distance", 5, Q("46 mm")),
    Sketcher.Constraint("DistanceX", -1, 1, 5, 2, Q("2.864502 mm")),
    Sketcher.Constraint("DistanceY", 2, 2, -1, 1, Q("80.204682 mm")),
    Sketcher.Constraint("DistanceY", 4, 2, 0, 2, Q("9.294229 mm")),
    Sketcher.Constraint("DistanceX", -1, 1, 0, 2, Q("40.799747 mm")),
])
pad6 = doc.addObject("PartDesign::Pad", "Pad005")
body.addObject(pad6)
pad6.Profile = sketch9
pad6.Length = 12

# Sketch on XZ plane
sketch10 = doc.addObject("Sketcher::SketchObject", "Sketch009")
body.addObject(sketch10)
sketch10.AttachmentSupport = (doc.XZ_Plane, [""])
sketch10.MapMode = "FlatFace"
sketch10.AttachmentOffset = App.Placement(App.Vector(0, 0, 18), App.Rotation())
add_polygon(sketch10, [(44.750708, -53.655644), (2.315464, -78.155644), (1.016426, -78.905644), (1.766426, -80.204682), (46.799747, -54.204682), (40.799747, -43.812377), (-4.233574, -69.812377), (-3.483574, -71.111415), (-2.184536, -70.361415), (40.250708, -45.861415)])  # lines 0-9
sketch10.addConstraint([
    Sketcher.Constraint("Parallel", 0, 1),
    Sketcher.Constraint("Perpendicular", 1, 2),
    Sketcher.Constraint("Perpendicular", 2, 3),
    Sketcher.Constraint("Perpendicular", 3, 4),
    Sketcher.Constraint("Perpendicular", 4, 5),
    Sketcher.Constraint("Perpendicular", 5, 6),
    Sketcher.Constraint("Perpendicular", 6, 7),
    Sketcher.Constraint("Parallel", 7, 8),
    Sketcher.Constraint("Perpendicular", 8, 9),
    Sketcher.Constraint("Equal", 1, 2),
    Sketcher.Constraint("Equal", 3, 5),
    Sketcher.Constraint("Equal", 2, 6),
    Sketcher.Constraint("Equal", 6, 7),
    Sketcher.Constraint("Angle", 0, Q("-150 deg")),
    Sketcher.Constraint("Distance", 0, Q("49 mm")),
    Sketcher.Constraint("Distance", 3, Q("52 mm")),
    Sketcher.Constraint("Distance", 4, Q("12 mm")),
    Sketcher.Constraint("Distance", 9, Q("9 mm")),
    Sketcher.Constraint("DistanceY", 2, 2, -1, 1, Q("80.204682 mm")),
    Sketcher.Constraint("DistanceX", -1, 1, 8, 2, Q("40.250708 mm")),
])
pad7 = doc.addObject("PartDesign::Pad", "Pad006")
body.addObject(pad7)
pad7.Profile = sketch10
pad7.Length = 3

# Sketch on XZ plane
sketch11 = doc.addObject("Sketcher::SketchObject", "Sketch010")
body.addObject(sketch11)
sketch11.AttachmentSupport = (doc.XZ_Plane, [""])
sketch11.MapMode = "FlatFace"
sketch11.AttachmentOffset = App.Placement(App.Vector(0, 0, 21), App.Rotation())
add_polygon(sketch11, [(1.766426, -80.204682), (46.799747, -54.204682), (40.799747, -43.812377), (-4.233574, -69.812377)])  # lines 0-3
add_polygon(sketch11, [(39.70167, -47.910453), (42.70167, -53.106606), (2.864502, -76.106606), (-0.135498, -70.910453)])  # lines 4-7
sketch11.addConstraint([
    Sketcher.Constraint("Perpendicular", 0, 1),
    Sketcher.Constraint("Perpendicular", 1, 2),
    Sketcher.Constraint("Perpendicular", 2, 3),
    Sketcher.Constraint("Parallel", 3, 4),
    Sketcher.Constraint("Perpendicular", 4, 5),
    Sketcher.Constraint("Perpendicular", 5, 6),
    Sketcher.Constraint("Perpendicular", 6, 7),
    Sketcher.Constraint("Angle", 0, Q("30 deg")),
    Sketcher.Constraint("Distance", 0, Q("52 mm")),
    Sketcher.Constraint("Distance", 1, Q("12 mm")),
    Sketcher.Constraint("Distance", 4, Q("6 mm")),
    Sketcher.Constraint("Distance", 5, Q("46 mm")),
    Sketcher.Constraint("DistanceX", -1, 1, 5, 2, Q("2.864502 mm")),
    Sketcher.Constraint("DistanceY", 0, 2, -1, 1, Q("54.204682 mm")),
    Sketcher.Constraint("DistanceY", 4, 2, 1, 2, Q("9.294229 mm")),
    Sketcher.Constraint("DistanceX", -1, 1, 0, 2, Q("46.799747 mm")),
])
pad8 = doc.addObject("PartDesign::Pad", "Pad007")
body.addObject(pad8)
pad8.Profile = sketch11
pad8.Length = 3

# Sketch on an angled plane
sketch12 = doc.addObject("Sketcher::SketchObject", "Sketch011")
body.addObject(sketch12)
sketch12.Placement = App.Placement(App.Vector(-33.404827, 0, -19.286286), App.Rotation(App.Vector(-0.5, 0, 0.866025404), App.Vector(0, 1, 0), App.Vector(-0.866025404, 0, -0.5), "ZXY"))
add_polygon(sketch12, [(-68.842505, -12), (-68.842505, -18), (-59.842505, -18), (-59.842505, -12)])  # lines 0-3
sketch12.addConstraint([
    Sketcher.Constraint("Vertical", 0),
    Sketcher.Constraint("Horizontal", 1),
    Sketcher.Constraint("Vertical", 2),
    Sketcher.Constraint("Horizontal", 3),
    Sketcher.Constraint("DistanceX", 1, 1, 1, 2, Q("9 mm")),
    Sketcher.Constraint("DistanceY", 0, 2, 0, 1, Q("6 mm")),
    Sketcher.Constraint("DistanceY", 0, 2, -1, 1, Q("18 mm")),
    Sketcher.Constraint("DistanceX", 0, 2, -1, 1, Q("68.842505 mm")),
])
pocket4 = doc.addObject("PartDesign::Pocket", "Pocket003")
body.addObject(pocket4)
pocket4.Profile = sketch12
pocket4.Length = 5

doc.recompute()
